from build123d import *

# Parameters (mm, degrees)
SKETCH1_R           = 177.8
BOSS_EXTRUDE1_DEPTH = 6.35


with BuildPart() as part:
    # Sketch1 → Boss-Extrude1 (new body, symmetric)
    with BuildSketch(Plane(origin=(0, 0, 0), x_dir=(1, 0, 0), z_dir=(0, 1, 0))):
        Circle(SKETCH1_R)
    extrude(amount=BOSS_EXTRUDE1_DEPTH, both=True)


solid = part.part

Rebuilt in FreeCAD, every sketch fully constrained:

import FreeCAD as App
import Part
import Sketcher
from FreeCAD import Vector
Q = App.Units.Quantity

doc = App.newDocument("Part")
body = doc.addObject("PartDesign::Body", "Body")

# Sketch on XZ plane
sketch1 = body.newObject("Sketcher::SketchObject", "Sketch")
sketch1.AttachmentSupport = (doc.getObject("XZ_Plane"), [""])
sketch1.MapMode = "FlatFace"
sketch1.addGeometry(Part.Circle(Vector(0, 0, 0), Vector(0, 0, 1), 177.8), False)
sketch1.addConstraint(Sketcher.Constraint("Coincident", 0, 3, -1, 1))
sketch1.addConstraint(Sketcher.Constraint("Diameter", 0, Q("14 in")))
pad1 = body.newObject("PartDesign::Pad", "Pad")
pad1.Profile = sketch1
pad1.Length = Q("0.5 in")
pad1.Midplane = True

doc.recompute()
